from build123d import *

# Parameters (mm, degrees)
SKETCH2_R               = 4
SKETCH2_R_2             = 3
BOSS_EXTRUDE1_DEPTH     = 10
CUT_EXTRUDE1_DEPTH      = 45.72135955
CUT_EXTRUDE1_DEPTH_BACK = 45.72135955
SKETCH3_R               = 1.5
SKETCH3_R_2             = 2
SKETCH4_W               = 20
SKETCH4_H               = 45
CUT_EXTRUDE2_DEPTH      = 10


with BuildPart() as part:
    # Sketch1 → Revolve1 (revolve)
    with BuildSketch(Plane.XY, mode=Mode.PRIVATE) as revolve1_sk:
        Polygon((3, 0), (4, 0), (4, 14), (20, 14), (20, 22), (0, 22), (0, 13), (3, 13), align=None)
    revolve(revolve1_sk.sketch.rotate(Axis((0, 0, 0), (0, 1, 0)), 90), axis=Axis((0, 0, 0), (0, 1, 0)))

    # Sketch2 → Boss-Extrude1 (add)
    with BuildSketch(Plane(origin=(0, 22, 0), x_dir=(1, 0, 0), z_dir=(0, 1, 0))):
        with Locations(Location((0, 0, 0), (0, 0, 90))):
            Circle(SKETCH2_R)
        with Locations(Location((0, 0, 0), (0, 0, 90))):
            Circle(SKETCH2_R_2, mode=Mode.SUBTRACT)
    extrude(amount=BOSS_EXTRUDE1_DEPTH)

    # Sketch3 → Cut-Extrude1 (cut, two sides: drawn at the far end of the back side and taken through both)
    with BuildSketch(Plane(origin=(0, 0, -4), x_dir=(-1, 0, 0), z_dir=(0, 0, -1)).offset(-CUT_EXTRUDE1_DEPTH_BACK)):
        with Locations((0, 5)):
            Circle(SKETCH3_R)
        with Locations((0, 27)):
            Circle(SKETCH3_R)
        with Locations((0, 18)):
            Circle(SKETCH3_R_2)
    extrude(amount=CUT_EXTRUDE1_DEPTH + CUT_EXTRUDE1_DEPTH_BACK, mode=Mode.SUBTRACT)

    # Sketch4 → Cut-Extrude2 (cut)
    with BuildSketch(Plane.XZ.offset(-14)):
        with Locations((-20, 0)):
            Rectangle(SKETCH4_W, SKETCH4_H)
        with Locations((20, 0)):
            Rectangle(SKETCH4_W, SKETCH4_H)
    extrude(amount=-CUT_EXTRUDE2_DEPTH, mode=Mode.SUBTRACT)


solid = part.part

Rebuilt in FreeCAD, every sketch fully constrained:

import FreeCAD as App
import Part
import Sketcher
from FreeCAD import Vector


def add_polygon(sketch, points):
    """Adds a closed chain of lines whose ends are joined by coincident constraints."""
    first, n = sketch.GeometryCount, len(points)
    for a, b in zip(points, points[1:] + points[:1]):
        sketch.addGeometry(Part.LineSegment(App.Vector(*a, 0), App.Vector(*b, 0)), False)
    for i in range(n):
        sketch.addConstraint(Sketcher.Constraint("Coincident", first + i, 2, first + (i + 1) % n, 1))

doc = App.newDocument("Part")
body = doc.addObject("PartDesign::Body", "Body")

# Sketch on XY plane
sketch1 = body.newObject("Sketcher::SketchObject", "Sketch")
sketch1.AttachmentSupport = (doc.getObject("XY_Plane"), [""])
sketch1.MapMode = "FlatFace"
add_polygon(sketch1, [(3, 0), (4, 0), (4, 14), (20, 14), (20, 22), (0, 22), (0, 13), (3, 13)])  # lines 0-7
sketch1.addConstraint([
    Sketcher.Constraint("Horizontal", 0),
    Sketcher.Constraint("Vertical", 1),
    Sketcher.Constraint("Horizontal", 2),
    Sketcher.Constraint("Vertical", 3),
    Sketcher.Constraint("Horizontal", 4),
    Sketcher.Constraint("Vertical", 5),
    Sketcher.Constraint("Horizontal", 6),
    Sketcher.Constraint("Vertical", 7),
    Sketcher.Constraint("PointOnObject", 0, 2, -1),
    Sketcher.Constraint("PointOnObject", 4, 2, -2),
    Sketcher.Constraint("DistanceX", 0, 1, 0, 2, 1.0),
    Sketcher.Constraint("DistanceX", 2, 1, 2, 2, 16.0),
    Sketcher.Constraint("DistanceX", 4, 2, 4, 1, 20.0),
    Sketcher.Constraint("DistanceY", 1, 1, 1, 2, 14.0),
    Sketcher.Constraint("DistanceY", 3, 1, 3, 2, 8.0),
    Sketcher.Constraint("DistanceY", 5, 2, 5, 1, 9.0),
])
revolution = body.newObject("PartDesign::Revolution", "Revolution")
revolution.Profile = sketch1
revolution.ReferenceAxis = (sketch1, ["V_Axis"])
revolution.Angle = 360

# Sketch on XZ plane
sketch2 = body.newObject("Sketcher::SketchObject", "Sketch001")
sketch2.AttachmentSupport = (doc.getObject("XZ_Plane"), [""])
sketch2.MapMode = "FlatFace"
sketch2.AttachmentOffset = App.Placement(Vector(0, 0, -22), App.Rotation())
sketch2.addGeometry([
    Part.Circle(Vector(0, 0, 0), Vector(0, 0, 1), 4),
    Part.Circle(Vector(0, 0, 0), Vector(0, 0, 1), 3),
], False)
sketch2.addConstraint([
    Sketcher.Constraint("Coincident", 0, 3, -1, 1),
    Sketcher.Constraint("Coincident", 1, 3, -1, 1),
    Sketcher.Constraint("Diameter", 0, 8.0),
    Sketcher.Constraint("Diameter", 1, 6.0),
])
pad1 = body.newObject("PartDesign::Pad", "Pad")
pad1.Profile = sketch2
pad1.Length = 10
pad1.Reversed = True

# Sketch on XY plane
sketch3 = body.newObject("Sketcher::SketchObject", "Sketch002")
sketch3.AttachmentSupport = (doc.getObject("XY_Plane"), [""])
sketch3.MapMode = "FlatFace"
sketch3.AttachmentOffset = App.Placement(Vector(0, 0, -4), App.Rotation())
sketch3.addGeometry([
    Part.Circle(Vector(0, 5, 0), Vector(0, 0, 1), 1.5),
    Part.Circle(Vector(0, 27, 0), Vector(0, 0, 1), 1.5),
    Part.Circle(Vector(0, 18, 0), Vector(0, 0, 1), 2),
], False)
sketch3.addConstraint([
    Sketcher.Constraint("Equal", 0, 1),
    Sketcher.Constraint("PointOnObject", 0, 3, -2),
    Sketcher.Constraint("PointOnObject", 1, 3, -2),
    Sketcher.Constraint("PointOnObject", 2, 3, -2),
    Sketcher.Constraint("Diameter", 0, 3.0),
    Sketcher.Constraint("Diameter", 2, 4.0),
    Sketcher.Constraint("DistanceY", -1, 1, 0, 3, 5.0),
    Sketcher.Constraint("DistanceY", -1, 1, 1, 3, 27.0),
    Sketcher.Constraint("DistanceY", -1, 1, 2, 3, 18.0),
])
pocket1 = body.newObject("PartDesign::Pocket", "Pocket")
pocket1.Profile = sketch3
pocket1.Type = "ThroughAll"
pocket1.Midplane = True

# Sketch on XZ plane
sketch4 = body.newObject("Sketcher::SketchObject", "Sketch003")
sketch4.AttachmentSupport = (doc.getObject("XZ_Plane"), [""])
sketch4.MapMode = "FlatFace"
sketch4.AttachmentOffset = App.Placement(Vector(0, 0, -14), App.Rotation())
add_polygon(sketch4, [(-30, 22), (-30, -22), (-10, -22), (-10, 22)])  # lines 0-3
add_polygon(sketch4, [(10, 22), (10, -22), (30, -22), (30, 22)])  # lines 4-7
sketch4.addConstraint([
    Sketcher.Constraint("Vertical", 0),
    Sketcher.Constraint("Horizontal", 1),
    Sketcher.Constraint("Vertical", 2),
    Sketcher.Constraint("Horizontal", 3),
    Sketcher.Constraint("Vertical", 4),
    Sketcher.Constraint("Horizontal", 5),
    Sketcher.Constraint("Vertical", 6),
    Sketcher.Constraint("Horizontal", 7),
    Sketcher.Constraint("Symmetric", 2, 2, 4, 2, -1, 1),
    Sketcher.Constraint("Symmetric", 0, 2, 6, 2, -1, 1),
    Sketcher.Constraint("Horizontal", 1, 2, 4, 2),
    Sketcher.Constraint("DistanceX", 1, 1, 1, 2, 20.0),
    Sketcher.Constraint("DistanceY", 0, 2, 0, 1, 45.0),
    Sketcher.Constraint("DistanceX", 0, 2, -1, 1, 30.0),
])
pocket2 = body.newObject("PartDesign::Pocket", "Pocket001")
pocket2.Profile = sketch4
pocket2.Length = 10

doc.recompute()
